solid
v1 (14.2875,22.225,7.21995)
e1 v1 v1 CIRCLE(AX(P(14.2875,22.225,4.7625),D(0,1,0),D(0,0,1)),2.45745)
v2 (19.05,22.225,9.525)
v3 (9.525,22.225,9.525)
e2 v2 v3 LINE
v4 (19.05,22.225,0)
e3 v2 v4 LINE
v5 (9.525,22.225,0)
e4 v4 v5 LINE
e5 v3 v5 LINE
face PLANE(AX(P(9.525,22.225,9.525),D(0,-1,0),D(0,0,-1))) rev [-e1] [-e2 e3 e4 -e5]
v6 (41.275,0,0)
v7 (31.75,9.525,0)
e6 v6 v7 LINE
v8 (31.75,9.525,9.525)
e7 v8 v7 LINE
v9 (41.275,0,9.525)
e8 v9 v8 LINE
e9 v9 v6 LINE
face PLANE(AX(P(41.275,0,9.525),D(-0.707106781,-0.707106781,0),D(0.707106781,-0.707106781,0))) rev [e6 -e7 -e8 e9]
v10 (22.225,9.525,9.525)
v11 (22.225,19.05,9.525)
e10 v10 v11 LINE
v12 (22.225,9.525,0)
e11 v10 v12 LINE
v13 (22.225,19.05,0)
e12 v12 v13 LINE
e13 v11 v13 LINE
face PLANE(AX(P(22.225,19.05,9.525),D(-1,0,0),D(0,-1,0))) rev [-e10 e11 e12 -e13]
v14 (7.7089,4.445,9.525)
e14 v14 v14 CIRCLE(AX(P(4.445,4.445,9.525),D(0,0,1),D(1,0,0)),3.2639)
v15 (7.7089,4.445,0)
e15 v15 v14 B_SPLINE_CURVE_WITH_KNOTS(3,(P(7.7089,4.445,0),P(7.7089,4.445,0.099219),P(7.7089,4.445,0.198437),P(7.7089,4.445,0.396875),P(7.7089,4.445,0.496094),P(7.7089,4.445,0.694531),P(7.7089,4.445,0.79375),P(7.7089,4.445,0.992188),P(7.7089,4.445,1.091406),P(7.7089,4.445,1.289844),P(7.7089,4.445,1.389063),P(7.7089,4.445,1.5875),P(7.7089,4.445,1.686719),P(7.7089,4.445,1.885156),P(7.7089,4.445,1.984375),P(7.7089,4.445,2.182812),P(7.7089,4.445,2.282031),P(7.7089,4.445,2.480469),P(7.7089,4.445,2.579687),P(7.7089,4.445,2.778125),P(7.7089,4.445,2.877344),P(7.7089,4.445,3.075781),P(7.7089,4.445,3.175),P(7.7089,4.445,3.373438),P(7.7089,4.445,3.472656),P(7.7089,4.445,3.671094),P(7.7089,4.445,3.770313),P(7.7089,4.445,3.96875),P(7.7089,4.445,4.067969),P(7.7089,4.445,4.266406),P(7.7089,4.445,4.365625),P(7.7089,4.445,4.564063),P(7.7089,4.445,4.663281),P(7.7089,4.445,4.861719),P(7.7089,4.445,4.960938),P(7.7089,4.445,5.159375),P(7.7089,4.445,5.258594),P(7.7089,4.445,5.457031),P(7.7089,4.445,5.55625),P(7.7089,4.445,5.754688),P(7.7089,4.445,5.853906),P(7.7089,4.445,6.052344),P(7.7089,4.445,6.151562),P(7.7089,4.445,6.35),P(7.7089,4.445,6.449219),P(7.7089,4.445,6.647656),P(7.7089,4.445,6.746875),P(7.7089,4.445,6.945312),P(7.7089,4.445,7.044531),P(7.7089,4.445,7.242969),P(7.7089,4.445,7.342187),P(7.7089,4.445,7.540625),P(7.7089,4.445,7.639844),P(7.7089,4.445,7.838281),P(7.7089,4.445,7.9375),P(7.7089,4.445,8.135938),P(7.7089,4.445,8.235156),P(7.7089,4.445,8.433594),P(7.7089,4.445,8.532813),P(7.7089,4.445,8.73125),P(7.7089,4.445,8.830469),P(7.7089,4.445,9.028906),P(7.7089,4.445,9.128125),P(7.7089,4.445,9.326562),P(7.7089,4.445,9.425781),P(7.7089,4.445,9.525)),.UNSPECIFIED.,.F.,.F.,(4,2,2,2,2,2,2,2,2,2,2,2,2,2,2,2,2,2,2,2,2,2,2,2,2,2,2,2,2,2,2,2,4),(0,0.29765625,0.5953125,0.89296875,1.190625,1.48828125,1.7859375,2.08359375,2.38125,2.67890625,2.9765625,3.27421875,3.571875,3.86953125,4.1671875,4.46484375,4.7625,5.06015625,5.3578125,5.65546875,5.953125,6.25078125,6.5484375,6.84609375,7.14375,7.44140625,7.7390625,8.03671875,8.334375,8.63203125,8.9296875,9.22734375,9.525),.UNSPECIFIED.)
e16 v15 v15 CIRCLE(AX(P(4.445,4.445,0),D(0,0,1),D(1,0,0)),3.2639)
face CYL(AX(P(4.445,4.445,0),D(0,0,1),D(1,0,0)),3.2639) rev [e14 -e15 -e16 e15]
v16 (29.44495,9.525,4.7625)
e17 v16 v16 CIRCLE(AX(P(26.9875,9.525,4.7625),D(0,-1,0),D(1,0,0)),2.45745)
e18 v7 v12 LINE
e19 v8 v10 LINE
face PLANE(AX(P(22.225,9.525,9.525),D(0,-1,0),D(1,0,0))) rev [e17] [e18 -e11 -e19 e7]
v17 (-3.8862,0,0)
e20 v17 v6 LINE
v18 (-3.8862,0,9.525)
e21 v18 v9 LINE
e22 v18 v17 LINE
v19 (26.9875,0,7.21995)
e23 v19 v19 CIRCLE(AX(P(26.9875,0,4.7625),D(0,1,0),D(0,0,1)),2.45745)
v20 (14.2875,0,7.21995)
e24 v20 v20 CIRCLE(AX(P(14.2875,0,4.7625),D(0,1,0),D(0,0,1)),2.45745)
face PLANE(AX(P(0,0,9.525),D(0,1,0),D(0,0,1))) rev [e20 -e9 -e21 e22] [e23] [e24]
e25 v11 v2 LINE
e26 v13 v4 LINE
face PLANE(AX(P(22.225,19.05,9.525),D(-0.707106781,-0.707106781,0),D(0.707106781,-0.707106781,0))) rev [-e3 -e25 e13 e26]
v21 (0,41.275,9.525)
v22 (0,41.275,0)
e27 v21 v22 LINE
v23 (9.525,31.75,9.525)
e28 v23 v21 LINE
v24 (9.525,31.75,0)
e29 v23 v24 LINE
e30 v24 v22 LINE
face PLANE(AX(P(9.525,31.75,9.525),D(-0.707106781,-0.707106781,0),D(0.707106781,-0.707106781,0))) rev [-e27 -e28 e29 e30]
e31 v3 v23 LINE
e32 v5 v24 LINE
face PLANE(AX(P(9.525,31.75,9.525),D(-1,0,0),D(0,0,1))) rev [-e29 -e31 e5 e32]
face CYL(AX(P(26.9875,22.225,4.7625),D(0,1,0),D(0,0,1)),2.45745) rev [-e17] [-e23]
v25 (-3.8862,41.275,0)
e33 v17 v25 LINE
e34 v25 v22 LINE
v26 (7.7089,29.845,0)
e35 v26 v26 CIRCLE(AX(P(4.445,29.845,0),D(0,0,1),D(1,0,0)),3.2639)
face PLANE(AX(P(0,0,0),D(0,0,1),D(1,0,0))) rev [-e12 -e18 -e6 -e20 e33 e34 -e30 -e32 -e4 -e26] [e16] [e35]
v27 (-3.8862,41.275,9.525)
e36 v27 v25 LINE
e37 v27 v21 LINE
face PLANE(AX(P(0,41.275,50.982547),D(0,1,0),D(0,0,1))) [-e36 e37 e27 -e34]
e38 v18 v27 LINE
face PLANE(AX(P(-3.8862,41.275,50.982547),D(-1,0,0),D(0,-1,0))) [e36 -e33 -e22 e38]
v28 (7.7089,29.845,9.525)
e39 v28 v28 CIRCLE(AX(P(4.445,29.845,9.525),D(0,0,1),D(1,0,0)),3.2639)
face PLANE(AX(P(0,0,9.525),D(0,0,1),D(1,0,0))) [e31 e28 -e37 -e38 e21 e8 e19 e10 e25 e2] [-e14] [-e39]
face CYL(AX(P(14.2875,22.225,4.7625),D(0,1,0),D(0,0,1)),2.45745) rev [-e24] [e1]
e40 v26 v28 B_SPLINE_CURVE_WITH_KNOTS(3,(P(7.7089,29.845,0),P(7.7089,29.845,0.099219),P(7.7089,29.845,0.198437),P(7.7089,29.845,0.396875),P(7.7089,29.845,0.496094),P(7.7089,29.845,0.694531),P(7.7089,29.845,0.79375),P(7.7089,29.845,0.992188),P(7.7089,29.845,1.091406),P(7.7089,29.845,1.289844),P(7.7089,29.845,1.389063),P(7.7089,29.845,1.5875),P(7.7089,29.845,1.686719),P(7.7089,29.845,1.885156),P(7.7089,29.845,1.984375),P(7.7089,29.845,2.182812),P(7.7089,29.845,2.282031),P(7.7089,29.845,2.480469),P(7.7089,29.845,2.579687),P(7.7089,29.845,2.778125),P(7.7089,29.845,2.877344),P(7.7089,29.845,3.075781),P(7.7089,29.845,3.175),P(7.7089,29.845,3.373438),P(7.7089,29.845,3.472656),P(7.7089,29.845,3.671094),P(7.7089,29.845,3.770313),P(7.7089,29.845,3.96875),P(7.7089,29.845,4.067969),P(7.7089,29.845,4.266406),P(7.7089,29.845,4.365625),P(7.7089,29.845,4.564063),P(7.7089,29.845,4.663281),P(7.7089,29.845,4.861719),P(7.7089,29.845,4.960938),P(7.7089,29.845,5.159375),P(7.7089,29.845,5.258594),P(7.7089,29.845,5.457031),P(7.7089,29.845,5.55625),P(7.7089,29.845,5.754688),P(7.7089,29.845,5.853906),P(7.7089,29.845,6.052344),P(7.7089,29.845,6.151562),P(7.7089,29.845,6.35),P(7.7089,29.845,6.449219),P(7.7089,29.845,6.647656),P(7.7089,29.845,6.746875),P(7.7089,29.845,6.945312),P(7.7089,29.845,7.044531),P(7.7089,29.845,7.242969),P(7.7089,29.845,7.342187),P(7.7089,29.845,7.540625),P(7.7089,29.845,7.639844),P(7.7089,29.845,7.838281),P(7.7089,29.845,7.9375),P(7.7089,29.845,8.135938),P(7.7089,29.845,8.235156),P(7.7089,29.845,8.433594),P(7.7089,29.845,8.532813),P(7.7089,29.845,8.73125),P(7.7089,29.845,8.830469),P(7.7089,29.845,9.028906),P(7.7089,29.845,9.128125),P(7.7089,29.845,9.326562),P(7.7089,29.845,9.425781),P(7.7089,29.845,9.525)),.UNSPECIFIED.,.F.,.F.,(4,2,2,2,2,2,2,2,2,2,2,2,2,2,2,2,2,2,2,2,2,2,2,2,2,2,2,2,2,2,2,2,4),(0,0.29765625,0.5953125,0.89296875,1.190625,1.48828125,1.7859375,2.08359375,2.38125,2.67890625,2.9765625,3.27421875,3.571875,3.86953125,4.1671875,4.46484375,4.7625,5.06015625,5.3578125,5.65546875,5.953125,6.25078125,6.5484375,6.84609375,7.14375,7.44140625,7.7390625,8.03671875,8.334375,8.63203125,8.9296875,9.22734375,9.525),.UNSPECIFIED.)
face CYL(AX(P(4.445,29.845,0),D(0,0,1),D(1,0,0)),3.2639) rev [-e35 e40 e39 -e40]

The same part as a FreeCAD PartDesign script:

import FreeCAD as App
import Part
import Sketcher
Q = App.Units.Quantity


def add_polygon(sketch, points):
    """Adds a closed chain of lines whose ends are joined by coincident constraints."""
    first, n = sketch.GeometryCount, len(points)
    for a, b in zip(points, points[1:] + points[:1]):
        sketch.addGeometry(Part.LineSegment(App.Vector(*a, 0), App.Vector(*b, 0)), False)
    for i in range(n):
        sketch.addConstraint(Sketcher.Constraint("Coincident", first + i, 2, first + (i + 1) % n, 1))

doc = App.newDocument("Part")
body = doc.addObject("PartDesign::Body", "Body")

sketch1 = body.newObject("Sketcher::SketchObject", "Sketch")
sketch1.AttachmentSupport = (doc.getObject("XY_Plane"), [""])
sketch1.MapMode = "FlatFace"
add_polygon(sketch1, [(0, 0), (41.3, 0), (31.8, 9.5), (22.2, 9.5), (22.2, 19.1), (19.1, 22.2), (9.5, 22.2), (9.5, 31.8), (0, 41.3)])
sketch1.addConstraint([
    Sketcher.Constraint("Horizontal", 0),
    Sketcher.Constraint("Horizontal", 2),
    Sketcher.Constraint("Vertical", 3),
    Sketcher.Constraint("Horizontal", 5),
    Sketcher.Constraint("Vertical", 6),
    Sketcher.Constraint("Vertical", 8),
    Sketcher.Constraint("Coincident", 8, 2, -1, 1),
    Sketcher.Constraint("Parallel", 1, 4),
    Sketcher.Constraint("Parallel", 4, 7),
    Sketcher.Constraint("Equal", 2, 5),
    Sketcher.Constraint("Equal", 5, 3),
    Sketcher.Constraint("Equal", 3, 6),
    Sketcher.Constraint("Equal", 0, 8),
    Sketcher.Constraint("Equal", 1, 7),
    Sketcher.Constraint("DistanceY", 2, 2, 4, 2, Q("0.5 in")),
    Sketcher.Constraint("DistanceX", 0, 1, 0, 2, Q("1.625 in")),
    Sketcher.Constraint("DistanceX", 2, 2, 2, 1, Q("0.375 in")),
])
pad1 = body.newObject("PartDesign::Pad", "Pad")
pad1.Profile = sketch1
pad1.Length = Q("0.375 in")

sketch2 = body.newObject("Sketcher::SketchObject", "Sketch001")
sketch2.AttachmentSupport = (doc.getObject("XY_Plane"), [""])
sketch2.MapMode = "FlatFace"
sketch2.AttachmentOffset = App.Placement(App.Vector(0, 0, 0.375 * 25.4), App.Rotation())
sketch2.addGeometry([
    Part.Circle(App.Vector(4.4, 29.8, 0), App.Vector(0, 0, 1), 3.3),
    Part.Circle(App.Vector(4.4, 4.4, 0), App.Vector(0, 0, 1), 3.3),
], False)
sketch2.addConstraint([
    Sketcher.Constraint("Equal", 0, 1),
    Sketcher.Constraint("Vertical", 0, 3, 1, 3),
    Sketcher.Constraint("Diameter", 0, Q("0.257 in")),
    Sketcher.Constraint("DistanceY", 1, 3, 0, 3, Q("1 in")),
    Sketcher.Constraint("DistanceX", -1, 1, 0, 3, Q("0.175 in")),
    Sketcher.Constraint("DistanceY", -1, 1, 0, 3, Q("1.175 in")),
])
pocket1 = body.newObject("PartDesign::Pocket", "Pocket")
pocket1.Profile = sketch2
pocket1.Type = "ThroughAll"

sketch3 = body.newObject("Sketcher::SketchObject", "Sketch002")
sketch3.AttachmentSupport = (doc.getObject("XY_Plane"), [""])
sketch3.MapMode = "FlatFace"
add_polygon(sketch3, [(0, 41.3), (0, 0), (-3.9, 0), (-3.9, 41.3)])
sketch3.addConstraint([
    Sketcher.Constraint("Vertical", 0),
    Sketcher.Constraint("Horizontal", 1),
    Sketcher.Constraint("Vertical", 2),
    Sketcher.Constraint("Horizontal", 3),
    Sketcher.Constraint("Coincident", 0, 2, -1, 1),
    Sketcher.Constraint("DistanceX", 1, 2, 1, 1, Q("0.153 in")),
    Sketcher.Constraint("DistanceY", 0, 2, 0, 1, Q("1.625 in")),
])
pad2 = body.newObject("PartDesign::Pad", "Pad001")
pad2.Profile = sketch3
pad2.Length = Q("0.375 in")

sketch4 = body.newObject("Sketcher::SketchObject", "Sketch003")
sketch4.AttachmentSupport = (doc.getObject("XZ_Plane"), [""])
sketch4.MapMode = "FlatFace"
sketch4.AttachmentOffset = App.Placement(App.Vector(0, 0, -0.875 * 25.4), App.Rotation())
sketch4.addGeometry([
    Part.Circle(App.Vector(14.3, 4.8, 0), App.Vector(0, 0, 1), 2.5),
    Part.Circle(App.Vector(27, 4.8, 0), App.Vector(0, 0, 1), 2.5),
], False)
sketch4.addConstraint([
    Sketcher.Constraint("Equal", 0, 1),
    Sketcher.Constraint("Horizontal", 0, 3, 1, 3),
    Sketcher.Constraint("Diameter", 0, Q("0.1935 in")),
    Sketcher.Constraint("DistanceX", 0, 3, 1, 3, Q("0.5 in")),
    Sketcher.Constraint("DistanceX", -1, 1, 0, 3, Q("0.5625 in")),
    Sketcher.Constraint("DistanceY", -1, 1, 0, 3, Q("0.1875 in")),
])
doc.recompute()
hole = body.newObject("PartDesign::Hole", "Hole")
hole.Profile = sketch4
hole.ThreadType = "None"
hole.Diameter = Q("0.1935 in")
hole.DepthType = "ThroughAll"
hole.Reversed = True

doc.recompute()
